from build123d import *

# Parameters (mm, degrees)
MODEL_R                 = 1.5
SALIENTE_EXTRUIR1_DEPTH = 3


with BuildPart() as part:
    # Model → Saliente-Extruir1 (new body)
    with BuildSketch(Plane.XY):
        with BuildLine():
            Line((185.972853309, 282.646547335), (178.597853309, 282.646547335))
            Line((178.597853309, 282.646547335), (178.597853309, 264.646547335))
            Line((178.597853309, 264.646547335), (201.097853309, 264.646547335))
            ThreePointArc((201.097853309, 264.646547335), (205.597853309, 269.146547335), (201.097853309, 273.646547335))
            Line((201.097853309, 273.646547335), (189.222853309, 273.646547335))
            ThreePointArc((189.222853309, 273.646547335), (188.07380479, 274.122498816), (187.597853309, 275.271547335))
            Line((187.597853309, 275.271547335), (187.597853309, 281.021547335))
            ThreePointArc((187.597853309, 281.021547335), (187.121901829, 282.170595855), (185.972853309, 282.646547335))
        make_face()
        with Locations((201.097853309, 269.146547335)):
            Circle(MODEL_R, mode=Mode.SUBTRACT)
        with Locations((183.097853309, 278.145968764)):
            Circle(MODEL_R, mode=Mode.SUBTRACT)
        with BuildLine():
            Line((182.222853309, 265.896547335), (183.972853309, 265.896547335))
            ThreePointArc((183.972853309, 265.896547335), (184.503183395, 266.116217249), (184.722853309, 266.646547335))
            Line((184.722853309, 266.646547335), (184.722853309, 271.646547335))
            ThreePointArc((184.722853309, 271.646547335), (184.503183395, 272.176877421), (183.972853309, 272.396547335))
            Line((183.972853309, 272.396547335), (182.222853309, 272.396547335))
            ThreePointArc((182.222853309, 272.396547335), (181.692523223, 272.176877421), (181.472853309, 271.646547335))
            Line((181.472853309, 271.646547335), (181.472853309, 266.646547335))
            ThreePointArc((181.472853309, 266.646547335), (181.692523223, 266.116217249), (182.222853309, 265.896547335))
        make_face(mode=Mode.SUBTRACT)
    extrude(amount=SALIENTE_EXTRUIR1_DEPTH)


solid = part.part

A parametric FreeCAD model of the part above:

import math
import FreeCAD as App
import Part
import Sketcher
from FreeCAD import Vector

doc = App.newDocument("Part")
body = doc.addObject("PartDesign::Body", "Body")

sketch1 = body.newObject("Sketcher::SketchObject", "Sketch")
sketch1.AttachmentSupport = (doc.getObject("XY_Plane"), [""])
sketch1.MapMode = "FlatFace"
sketch1.addGeometry([
    Part.LineSegment(Vector(185.972853, 282.646547, 0), Vector(178.597853, 282.646547, 0)),
    Part.LineSegment(Vector(178.597853, 282.646547, 0), Vector(178.597853, 264.646547, 0)),
    Part.LineSegment(Vector(178.597853, 264.646547, 0), Vector(201.097853, 264.646547, 0)),
    Part.ArcOfCircle(Part.Circle(Vector(201.097853, 269.146547, 0), Vector(0, 0, 1), 4.5), math.radians(-90), math.radians(90)),
    Part.LineSegment(Vector(201.097853, 273.646547, 0), Vector(189.222853, 273.646547, 0)),
    Part.ArcOfCircle(Part.Circle(Vector(189.222853, 275.271547, 0), Vector(0, 0, 1), 1.625), math.radians(-180), math.radians(-90)),
    Part.LineSegment(Vector(187.597853, 275.271547, 0), Vector(187.597853, 281.021547, 0)),
    Part.ArcOfCircle(Part.Circle(Vector(185.972853, 281.021547, 0), Vector(0, 0, 1), 1.625), math.radians(0), math.radians(90)),
    Part.LineSegment(Vector(183.972853, 265.896547, 0), Vector(182.222853, 265.896547, 0)),
    Part.ArcOfCircle(Part.Circle(Vector(182.222853, 266.646547, 0), Vector(0, 0, 1), 0.75), math.radians(180), math.radians(270)),
    Part.LineSegment(Vector(181.472853, 266.646547, 0), Vector(181.472853, 271.646547, 0)),
    Part.ArcOfCircle(Part.Circle(Vector(182.222853, 271.646547, 0), Vector(0, 0, 1), 0.75), math.radians(90), math.radians(180)),
    Part.LineSegment(Vector(182.222853, 272.396547, 0), Vector(183.972853, 272.396547, 0)),
    Part.ArcOfCircle(Part.Circle(Vector(183.972853, 271.646547, 0), Vector(0, 0, 1), 0.75), math.radians(0), math.radians(90)),
    Part.LineSegment(Vector(184.722853, 271.646547, 0), Vector(184.722853, 266.646547, 0)),
    Part.ArcOfCircle(Part.Circle(Vector(183.972853, 266.646547, 0), Vector(0, 0, 1), 0.75), math.radians(-90), math.radians(0)),
    Part.Circle(Vector(201.097853, 269.146547, 0), Vector(0, 0, 1), 1.5),
    Part.Circle(Vector(183.097853, 278.145969, 0), Vector(0, 0, 1), 1.5),
], False)
sketch1.addConstraint([
    Sketcher.Constraint("Coincident", 0, 2, 1, 1),
    Sketcher.Constraint("Coincident", 1, 2, 2, 1),
    Sketcher.Constraint("Tangent", 2, 2, 3, 1),
    Sketcher.Constraint("Tangent", 3, 2, 4, 1),
    Sketcher.Constraint("Tangent", 4, 2, 5, 2),
    Sketcher.Constraint("Tangent", 5, 1, 6, 1),
    Sketcher.Constraint("Tangent", 6, 2, 7, 1),
    Sketcher.Constraint("Tangent", 7, 2, 0, 1),
    Sketcher.Constraint("Tangent", 8, 2, 9, 2),
    Sketcher.Constraint("Tangent", 9, 1, 10, 1),
    Sketcher.Constraint("Tangent", 10, 2, 11, 2),
    Sketcher.Constraint("Tangent", 11, 1, 12, 1),
    Sketcher.Constraint("Tangent", 12, 2, 13, 2),
    Sketcher.Constraint("Tangent", 13, 1, 14, 1),
    Sketcher.Constraint("Tangent", 14, 2, 15, 2),
    Sketcher.Constraint("Tangent", 15, 1, 8, 1),
    Sketcher.Constraint("Horizontal", 0),
    Sketcher.Constraint("Vertical", 1),
    Sketcher.Constraint("Horizontal", 2),
    Sketcher.Constraint("Horizontal", 4),
    Sketcher.Constraint("Vertical", 6),
    Sketcher.Constraint("Horizontal", 8),
    Sketcher.Constraint("Vertical", 10),
    Sketcher.Constraint("Horizontal", 12),
    Sketcher.Constraint("Vertical", 14),
    Sketcher.Constraint("Coincident", 16, 3, 3, 3),
    Sketcher.Constraint("Equal", 5, 7),
    Sketcher.Constraint("Equal", 9, 11),
    Sketcher.Constraint("Equal", 11, 13),
    Sketcher.Constraint("Equal", 13, 15),
    Sketcher.Constraint("Equal", 16, 17),
    Sketcher.Constraint("Diameter", 16, 3.0),
    Sketcher.Constraint("Radius", 3, 4.5),
    Sketcher.Constraint("DistanceY", 1, 2, 1, 1, 18.0),
    Sketcher.Constraint("DistanceY", 10, 1, 10, 2, 5.0),
    Sketcher.Constraint("Radius", 9, 0.75),
    Sketcher.Constraint("DistanceX", 2, 1, 2, 2, 22.5),
    Sketcher.Constraint("Radius", 5, 1.625),
    Sketcher.Constraint("DistanceX", 9, 3, 5, 3, 7.0),
    Sketcher.Constraint("DistanceX", 13, 3, 7, 3, 2.0),
    Sketcher.Constraint("DistanceY", 11, 3, 0, 2, 11.0),
    Sketcher.Constraint("DistanceX", 0, 2, 17, 3, 4.5),
    Sketcher.Constraint("DistanceX", 17, 3, 5, 1, 4.5),
    Sketcher.Constraint("DistanceY", -1, 1, 17, 3, 278.145969),
    Sketcher.Constraint("DistanceY", 17, 3, 7, 3, 2.875579),
    Sketcher.Constraint("DistanceX", -1, 1, 3, 3, 201.097853),
])
pad1 = body.newObject("PartDesign::Pad", "Pad")
pad1.Profile = sketch1
pad1.Length = 3

doc.recompute()
